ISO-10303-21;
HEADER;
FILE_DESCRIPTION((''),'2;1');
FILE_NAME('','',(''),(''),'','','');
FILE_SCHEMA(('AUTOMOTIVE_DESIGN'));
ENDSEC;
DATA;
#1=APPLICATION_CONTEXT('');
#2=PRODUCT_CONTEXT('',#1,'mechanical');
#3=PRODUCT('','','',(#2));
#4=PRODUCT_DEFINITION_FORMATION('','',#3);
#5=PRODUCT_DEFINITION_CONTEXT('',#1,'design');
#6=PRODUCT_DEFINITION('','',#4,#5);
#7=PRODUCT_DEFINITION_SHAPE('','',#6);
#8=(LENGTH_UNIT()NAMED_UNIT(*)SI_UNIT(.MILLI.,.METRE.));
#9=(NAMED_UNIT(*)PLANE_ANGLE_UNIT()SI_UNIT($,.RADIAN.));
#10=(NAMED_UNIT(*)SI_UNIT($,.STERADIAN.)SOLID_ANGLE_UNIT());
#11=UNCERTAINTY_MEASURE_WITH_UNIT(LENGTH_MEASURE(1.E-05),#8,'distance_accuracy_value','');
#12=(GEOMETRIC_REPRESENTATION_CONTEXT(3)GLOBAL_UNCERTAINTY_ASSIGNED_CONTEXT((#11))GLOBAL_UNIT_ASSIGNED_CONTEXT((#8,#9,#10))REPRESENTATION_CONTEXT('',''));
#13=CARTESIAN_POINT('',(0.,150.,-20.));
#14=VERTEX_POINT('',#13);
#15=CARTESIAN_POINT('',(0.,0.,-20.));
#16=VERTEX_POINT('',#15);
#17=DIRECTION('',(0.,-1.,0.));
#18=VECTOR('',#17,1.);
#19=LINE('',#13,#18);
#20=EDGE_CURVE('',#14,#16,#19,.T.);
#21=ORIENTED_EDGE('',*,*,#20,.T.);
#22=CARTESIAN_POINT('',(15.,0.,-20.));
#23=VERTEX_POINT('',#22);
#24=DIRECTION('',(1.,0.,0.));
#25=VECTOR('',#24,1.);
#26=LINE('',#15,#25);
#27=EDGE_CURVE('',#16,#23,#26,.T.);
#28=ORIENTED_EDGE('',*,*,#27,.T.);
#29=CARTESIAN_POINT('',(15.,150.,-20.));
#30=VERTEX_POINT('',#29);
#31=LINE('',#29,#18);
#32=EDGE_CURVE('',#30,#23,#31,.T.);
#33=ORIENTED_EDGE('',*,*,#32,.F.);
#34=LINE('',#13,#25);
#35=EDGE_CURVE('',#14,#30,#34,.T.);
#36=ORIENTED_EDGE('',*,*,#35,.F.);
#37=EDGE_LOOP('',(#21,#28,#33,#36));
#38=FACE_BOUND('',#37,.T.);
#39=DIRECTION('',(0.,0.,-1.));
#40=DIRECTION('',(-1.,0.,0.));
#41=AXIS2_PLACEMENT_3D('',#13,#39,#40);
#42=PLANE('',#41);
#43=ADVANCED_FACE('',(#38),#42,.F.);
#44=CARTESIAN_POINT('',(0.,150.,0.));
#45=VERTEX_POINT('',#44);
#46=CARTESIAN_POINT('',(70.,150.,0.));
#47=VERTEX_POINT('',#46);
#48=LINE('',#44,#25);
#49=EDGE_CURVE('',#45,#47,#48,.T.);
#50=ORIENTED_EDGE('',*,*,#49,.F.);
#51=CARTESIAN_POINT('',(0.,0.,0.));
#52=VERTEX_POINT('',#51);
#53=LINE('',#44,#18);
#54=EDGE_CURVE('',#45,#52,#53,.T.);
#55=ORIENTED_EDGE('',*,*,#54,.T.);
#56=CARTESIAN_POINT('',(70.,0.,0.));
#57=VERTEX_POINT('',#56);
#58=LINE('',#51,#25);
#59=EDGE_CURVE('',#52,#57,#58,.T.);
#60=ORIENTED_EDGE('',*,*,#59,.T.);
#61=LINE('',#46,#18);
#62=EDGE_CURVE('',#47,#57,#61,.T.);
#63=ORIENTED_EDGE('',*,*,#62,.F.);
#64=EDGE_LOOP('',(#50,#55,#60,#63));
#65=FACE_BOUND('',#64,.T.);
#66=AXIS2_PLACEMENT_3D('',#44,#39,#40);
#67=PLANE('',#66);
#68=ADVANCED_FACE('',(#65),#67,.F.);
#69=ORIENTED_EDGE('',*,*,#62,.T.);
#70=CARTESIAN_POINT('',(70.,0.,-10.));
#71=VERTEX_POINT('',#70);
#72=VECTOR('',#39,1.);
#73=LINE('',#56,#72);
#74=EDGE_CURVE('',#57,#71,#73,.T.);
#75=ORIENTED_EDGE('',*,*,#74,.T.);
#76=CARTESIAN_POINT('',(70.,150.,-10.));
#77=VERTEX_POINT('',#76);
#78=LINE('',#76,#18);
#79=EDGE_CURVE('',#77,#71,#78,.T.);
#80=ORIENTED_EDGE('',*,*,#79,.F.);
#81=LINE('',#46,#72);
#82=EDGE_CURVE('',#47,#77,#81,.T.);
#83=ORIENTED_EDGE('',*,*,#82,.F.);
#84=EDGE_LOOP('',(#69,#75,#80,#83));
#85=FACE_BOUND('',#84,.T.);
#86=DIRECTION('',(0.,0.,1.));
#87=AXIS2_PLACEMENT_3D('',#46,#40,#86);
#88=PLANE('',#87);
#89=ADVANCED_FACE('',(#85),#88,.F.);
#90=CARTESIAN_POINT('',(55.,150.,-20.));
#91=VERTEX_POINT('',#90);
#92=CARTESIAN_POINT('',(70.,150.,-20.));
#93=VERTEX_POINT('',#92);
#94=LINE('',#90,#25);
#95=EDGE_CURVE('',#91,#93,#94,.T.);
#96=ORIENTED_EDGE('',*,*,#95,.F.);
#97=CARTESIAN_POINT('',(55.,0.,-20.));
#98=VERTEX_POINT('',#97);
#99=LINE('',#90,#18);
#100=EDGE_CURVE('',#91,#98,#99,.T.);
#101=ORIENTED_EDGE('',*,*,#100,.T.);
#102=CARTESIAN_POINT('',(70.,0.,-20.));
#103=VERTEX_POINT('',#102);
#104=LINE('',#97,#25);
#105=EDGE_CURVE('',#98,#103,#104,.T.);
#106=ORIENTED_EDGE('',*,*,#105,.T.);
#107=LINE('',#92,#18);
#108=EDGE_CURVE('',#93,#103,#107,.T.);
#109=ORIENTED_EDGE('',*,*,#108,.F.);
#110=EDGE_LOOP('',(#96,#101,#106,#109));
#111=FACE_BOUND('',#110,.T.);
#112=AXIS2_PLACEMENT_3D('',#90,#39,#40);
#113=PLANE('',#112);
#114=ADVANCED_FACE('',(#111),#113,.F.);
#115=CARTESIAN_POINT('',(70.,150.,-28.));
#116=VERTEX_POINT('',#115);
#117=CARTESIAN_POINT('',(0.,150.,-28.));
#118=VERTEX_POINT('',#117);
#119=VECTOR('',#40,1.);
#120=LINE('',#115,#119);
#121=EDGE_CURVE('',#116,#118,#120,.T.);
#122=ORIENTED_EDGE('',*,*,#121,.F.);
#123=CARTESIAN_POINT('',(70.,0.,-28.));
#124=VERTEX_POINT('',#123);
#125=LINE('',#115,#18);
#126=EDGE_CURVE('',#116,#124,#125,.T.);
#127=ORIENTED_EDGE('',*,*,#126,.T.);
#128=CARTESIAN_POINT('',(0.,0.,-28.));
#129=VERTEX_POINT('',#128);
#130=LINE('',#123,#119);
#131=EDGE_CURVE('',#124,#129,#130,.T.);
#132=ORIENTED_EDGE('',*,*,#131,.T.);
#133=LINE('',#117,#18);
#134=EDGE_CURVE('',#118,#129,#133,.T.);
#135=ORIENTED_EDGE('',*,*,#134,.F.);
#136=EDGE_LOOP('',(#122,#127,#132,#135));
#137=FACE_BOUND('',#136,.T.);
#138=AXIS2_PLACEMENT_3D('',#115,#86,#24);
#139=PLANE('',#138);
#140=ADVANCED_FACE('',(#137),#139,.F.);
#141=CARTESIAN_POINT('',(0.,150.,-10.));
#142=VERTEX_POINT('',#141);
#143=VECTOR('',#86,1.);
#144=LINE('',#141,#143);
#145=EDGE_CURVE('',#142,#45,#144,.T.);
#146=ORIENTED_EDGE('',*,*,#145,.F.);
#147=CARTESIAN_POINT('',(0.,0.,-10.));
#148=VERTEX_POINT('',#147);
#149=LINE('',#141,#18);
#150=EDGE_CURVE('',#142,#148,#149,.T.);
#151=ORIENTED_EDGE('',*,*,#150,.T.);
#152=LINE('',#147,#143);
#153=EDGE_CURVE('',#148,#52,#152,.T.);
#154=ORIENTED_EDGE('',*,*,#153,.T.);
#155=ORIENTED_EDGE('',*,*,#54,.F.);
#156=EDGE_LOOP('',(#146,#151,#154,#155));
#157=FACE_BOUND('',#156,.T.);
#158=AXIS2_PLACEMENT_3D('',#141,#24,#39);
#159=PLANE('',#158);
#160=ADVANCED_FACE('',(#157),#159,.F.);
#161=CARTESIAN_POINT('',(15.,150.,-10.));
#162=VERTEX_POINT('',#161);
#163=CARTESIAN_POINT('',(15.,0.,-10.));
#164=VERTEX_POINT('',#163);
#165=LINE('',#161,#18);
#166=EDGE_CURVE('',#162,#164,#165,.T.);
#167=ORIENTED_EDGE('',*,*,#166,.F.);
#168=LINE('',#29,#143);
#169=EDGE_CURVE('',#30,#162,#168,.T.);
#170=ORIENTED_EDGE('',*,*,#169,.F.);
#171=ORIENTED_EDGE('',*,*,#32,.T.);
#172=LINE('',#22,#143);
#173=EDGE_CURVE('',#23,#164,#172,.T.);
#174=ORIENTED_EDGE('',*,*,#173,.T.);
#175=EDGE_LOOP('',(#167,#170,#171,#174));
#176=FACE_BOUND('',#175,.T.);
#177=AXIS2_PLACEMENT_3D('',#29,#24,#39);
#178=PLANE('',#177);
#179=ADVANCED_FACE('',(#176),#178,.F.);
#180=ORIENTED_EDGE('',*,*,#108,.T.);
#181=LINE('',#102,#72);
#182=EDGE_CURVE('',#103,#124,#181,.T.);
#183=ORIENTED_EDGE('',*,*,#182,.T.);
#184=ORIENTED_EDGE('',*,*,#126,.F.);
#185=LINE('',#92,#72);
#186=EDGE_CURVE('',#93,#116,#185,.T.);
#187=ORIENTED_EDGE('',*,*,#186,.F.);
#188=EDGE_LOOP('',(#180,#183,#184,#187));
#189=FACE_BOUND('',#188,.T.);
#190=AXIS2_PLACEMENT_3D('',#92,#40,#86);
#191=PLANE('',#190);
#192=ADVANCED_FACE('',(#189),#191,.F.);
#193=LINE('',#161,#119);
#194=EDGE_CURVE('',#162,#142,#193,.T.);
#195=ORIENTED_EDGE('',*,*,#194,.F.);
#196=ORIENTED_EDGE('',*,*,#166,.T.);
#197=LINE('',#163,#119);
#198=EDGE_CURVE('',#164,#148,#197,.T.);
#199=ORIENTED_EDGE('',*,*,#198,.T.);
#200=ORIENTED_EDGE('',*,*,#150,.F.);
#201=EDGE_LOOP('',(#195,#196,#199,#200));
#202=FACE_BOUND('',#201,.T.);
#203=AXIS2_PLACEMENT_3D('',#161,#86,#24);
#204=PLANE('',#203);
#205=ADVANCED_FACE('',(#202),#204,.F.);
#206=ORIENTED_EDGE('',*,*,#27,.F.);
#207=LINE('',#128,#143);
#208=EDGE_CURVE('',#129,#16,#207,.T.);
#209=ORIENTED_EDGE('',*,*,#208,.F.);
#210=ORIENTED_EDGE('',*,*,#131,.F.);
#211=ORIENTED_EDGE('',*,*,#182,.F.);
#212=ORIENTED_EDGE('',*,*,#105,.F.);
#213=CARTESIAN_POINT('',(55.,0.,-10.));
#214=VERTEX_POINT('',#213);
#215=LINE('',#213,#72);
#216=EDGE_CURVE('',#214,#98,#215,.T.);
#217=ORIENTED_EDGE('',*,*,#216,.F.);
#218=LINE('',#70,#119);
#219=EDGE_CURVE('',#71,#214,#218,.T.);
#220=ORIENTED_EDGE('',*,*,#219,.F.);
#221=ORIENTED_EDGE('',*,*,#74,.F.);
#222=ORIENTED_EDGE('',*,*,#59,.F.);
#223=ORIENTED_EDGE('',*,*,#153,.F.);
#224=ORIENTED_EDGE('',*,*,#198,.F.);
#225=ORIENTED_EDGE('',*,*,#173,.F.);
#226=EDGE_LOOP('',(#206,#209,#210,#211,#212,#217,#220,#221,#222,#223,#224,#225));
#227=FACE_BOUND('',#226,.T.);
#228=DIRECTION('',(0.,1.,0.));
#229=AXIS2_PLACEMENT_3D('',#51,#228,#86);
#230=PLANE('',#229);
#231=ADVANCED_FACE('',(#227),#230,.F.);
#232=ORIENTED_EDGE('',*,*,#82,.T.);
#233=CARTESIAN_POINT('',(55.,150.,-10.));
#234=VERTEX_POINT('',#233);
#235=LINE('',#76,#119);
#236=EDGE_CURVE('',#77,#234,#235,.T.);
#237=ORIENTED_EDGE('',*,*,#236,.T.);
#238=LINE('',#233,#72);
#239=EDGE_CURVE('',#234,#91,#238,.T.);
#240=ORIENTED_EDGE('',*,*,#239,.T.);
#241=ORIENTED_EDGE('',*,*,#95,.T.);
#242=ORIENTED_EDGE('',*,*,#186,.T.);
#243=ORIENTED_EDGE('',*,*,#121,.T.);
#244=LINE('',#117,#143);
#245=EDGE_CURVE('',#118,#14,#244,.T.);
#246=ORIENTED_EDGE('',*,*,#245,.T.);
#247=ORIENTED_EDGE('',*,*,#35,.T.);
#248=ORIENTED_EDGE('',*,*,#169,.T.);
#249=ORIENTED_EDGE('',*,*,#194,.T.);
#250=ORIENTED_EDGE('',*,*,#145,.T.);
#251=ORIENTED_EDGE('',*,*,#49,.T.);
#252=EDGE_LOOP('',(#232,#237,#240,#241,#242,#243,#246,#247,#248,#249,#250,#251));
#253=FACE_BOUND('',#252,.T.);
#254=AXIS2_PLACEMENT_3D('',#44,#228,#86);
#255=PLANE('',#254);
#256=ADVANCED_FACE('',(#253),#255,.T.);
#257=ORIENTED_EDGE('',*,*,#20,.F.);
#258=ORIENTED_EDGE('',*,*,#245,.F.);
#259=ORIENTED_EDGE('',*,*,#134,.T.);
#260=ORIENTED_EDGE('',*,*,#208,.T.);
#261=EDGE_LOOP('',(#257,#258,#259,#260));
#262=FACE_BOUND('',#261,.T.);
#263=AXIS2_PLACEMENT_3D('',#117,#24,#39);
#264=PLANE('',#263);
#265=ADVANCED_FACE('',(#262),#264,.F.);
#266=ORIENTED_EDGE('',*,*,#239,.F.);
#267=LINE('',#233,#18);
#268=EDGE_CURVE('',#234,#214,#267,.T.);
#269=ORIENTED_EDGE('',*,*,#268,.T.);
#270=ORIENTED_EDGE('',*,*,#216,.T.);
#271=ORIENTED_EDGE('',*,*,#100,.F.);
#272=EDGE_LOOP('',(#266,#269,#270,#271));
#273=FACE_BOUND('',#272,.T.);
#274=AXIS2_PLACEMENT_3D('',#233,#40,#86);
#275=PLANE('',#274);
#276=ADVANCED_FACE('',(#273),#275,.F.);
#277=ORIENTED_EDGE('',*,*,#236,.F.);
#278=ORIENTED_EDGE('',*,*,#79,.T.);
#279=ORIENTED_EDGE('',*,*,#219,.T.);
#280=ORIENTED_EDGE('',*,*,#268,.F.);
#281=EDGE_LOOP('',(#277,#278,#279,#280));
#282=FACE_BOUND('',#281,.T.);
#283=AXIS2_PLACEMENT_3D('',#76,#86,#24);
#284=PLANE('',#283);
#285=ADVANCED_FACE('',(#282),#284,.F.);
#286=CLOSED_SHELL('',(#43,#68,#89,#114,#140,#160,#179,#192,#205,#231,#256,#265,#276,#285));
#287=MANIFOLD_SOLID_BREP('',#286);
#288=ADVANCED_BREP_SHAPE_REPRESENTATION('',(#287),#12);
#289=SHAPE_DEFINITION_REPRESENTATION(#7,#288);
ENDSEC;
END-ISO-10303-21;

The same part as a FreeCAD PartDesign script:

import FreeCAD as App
import Part
import Sketcher
Q = App.Units.Quantity

doc = App.newDocument("Part")
body = doc.addObject("PartDesign::Body", "Body")

# Sketch on XZ plane
sketch1 = body.newObject("Sketcher::SketchObject", "Sketch")
sketch1.AttachmentSupport = (doc.getObject("XZ_Plane"), [""])
sketch1.MapMode = "FlatFace"
sketch1.addGeometry([
    Part.LineSegment(App.Vector(0, 0, 0), App.Vector(70, 0, 0)),  # 0
    Part.LineSegment(App.Vector(70, 0, 0), App.Vector(70, -10, 0)),  # 1
    Part.LineSegment(App.Vector(70, -10, 0), App.Vector(55, -10, 0)),  # 2
    Part.LineSegment(App.Vector(55, -10, 0), App.Vector(55, -20, 0)),  # 3
    Part.LineSegment(App.Vector(55, -20, 0), App.Vector(70, -20, 0)),  # 4
    Part.LineSegment(App.Vector(70, -20, 0), App.Vector(70, -28, 0)),  # 5
    Part.LineSegment(App.Vector(70, -28, 0), App.Vector(0, -28, 0)),  # 6
    Part.LineSegment(App.Vector(0, -28, 0), App.Vector(0, -20, 0)),  # 7
    Part.LineSegment(App.Vector(0, -20, 0), App.Vector(15, -20, 0)),  # 8
    Part.LineSegment(App.Vector(15, -20, 0), App.Vector(15, -10, 0)),  # 9
    Part.LineSegment(App.Vector(15, -10, 0), App.Vector(0, -10, 0)),  # 10
    Part.LineSegment(App.Vector(0, -10, 0), App.Vector(0, 0, 0)),  # 11
], False)
sketch1.addConstraint([
    Sketcher.Constraint("Coincident", 0, 2, 1, 1),
    Sketcher.Constraint("Coincident", 1, 2, 2, 1),
    Sketcher.Constraint("Coincident", 2, 2, 3, 1),
    Sketcher.Constraint("Coincident", 3, 2, 4, 1),
    Sketcher.Constraint("Coincident", 4, 2, 5, 1),
    Sketcher.Constraint("Coincident", 5, 2, 6, 1),
    Sketcher.Constraint("Coincident", 6, 2, 7, 1),
    Sketcher.Constraint("Coincident", 7, 2, 8, 1),
    Sketcher.Constraint("Coincident", 8, 2, 9, 1),
    Sketcher.Constraint("Coincident", 9, 2, 10, 1),
    Sketcher.Constraint("Coincident", 10, 2, 11, 1),
    Sketcher.Constraint("Coincident", 11, 2, 0, 1),
    Sketcher.Constraint("Horizontal", 0),
    Sketcher.Constraint("Vertical", 1),
    Sketcher.Constraint("Horizontal", 2),
    Sketcher.Constraint("Vertical", 3),
    Sketcher.Constraint("Horizontal", 4),
    Sketcher.Constraint("Vertical", 5),
    Sketcher.Constraint("Horizontal", 6),
    Sketcher.Constraint("Vertical", 7),
    Sketcher.Constraint("Horizontal", 8),
    Sketcher.Constraint("Vertical", 9),
    Sketcher.Constraint("Horizontal", 10),
    Sketcher.Constraint("Vertical", 11),
    Sketcher.Constraint("Coincident", 11, 2, -1, 1),
    Sketcher.Constraint("PointOnObject", 6, 2, -2),
    Sketcher.Constraint("Horizontal", 4, 2, 7, 2),
    Sketcher.Constraint("Horizontal", 2, 2, 9, 2),
    Sketcher.Constraint("Vertical", 1, 2, 4, 2),
    Sketcher.Constraint("Equal", 4, 8),
    Sketcher.Constraint("Equal", 1, 3),
    Sketcher.Constraint("DistanceX", 0, 1, 0, 2, Q("70 mm")),
    Sketcher.Constraint("DistanceX", 2, 2, 2, 1, Q("15 mm")),
    Sketcher.Constraint("DistanceY", 1, 2, 1, 1, Q("10 mm")),
    Sketcher.Constraint("DistanceY", 5, 2, 5, 1, Q("8 mm")),
])
pad1 = body.newObject("PartDesign::Pad", "Pad")
pad1.Profile = sketch1
pad1.Length = 150
pad1.Reversed = True

doc.recompute()
